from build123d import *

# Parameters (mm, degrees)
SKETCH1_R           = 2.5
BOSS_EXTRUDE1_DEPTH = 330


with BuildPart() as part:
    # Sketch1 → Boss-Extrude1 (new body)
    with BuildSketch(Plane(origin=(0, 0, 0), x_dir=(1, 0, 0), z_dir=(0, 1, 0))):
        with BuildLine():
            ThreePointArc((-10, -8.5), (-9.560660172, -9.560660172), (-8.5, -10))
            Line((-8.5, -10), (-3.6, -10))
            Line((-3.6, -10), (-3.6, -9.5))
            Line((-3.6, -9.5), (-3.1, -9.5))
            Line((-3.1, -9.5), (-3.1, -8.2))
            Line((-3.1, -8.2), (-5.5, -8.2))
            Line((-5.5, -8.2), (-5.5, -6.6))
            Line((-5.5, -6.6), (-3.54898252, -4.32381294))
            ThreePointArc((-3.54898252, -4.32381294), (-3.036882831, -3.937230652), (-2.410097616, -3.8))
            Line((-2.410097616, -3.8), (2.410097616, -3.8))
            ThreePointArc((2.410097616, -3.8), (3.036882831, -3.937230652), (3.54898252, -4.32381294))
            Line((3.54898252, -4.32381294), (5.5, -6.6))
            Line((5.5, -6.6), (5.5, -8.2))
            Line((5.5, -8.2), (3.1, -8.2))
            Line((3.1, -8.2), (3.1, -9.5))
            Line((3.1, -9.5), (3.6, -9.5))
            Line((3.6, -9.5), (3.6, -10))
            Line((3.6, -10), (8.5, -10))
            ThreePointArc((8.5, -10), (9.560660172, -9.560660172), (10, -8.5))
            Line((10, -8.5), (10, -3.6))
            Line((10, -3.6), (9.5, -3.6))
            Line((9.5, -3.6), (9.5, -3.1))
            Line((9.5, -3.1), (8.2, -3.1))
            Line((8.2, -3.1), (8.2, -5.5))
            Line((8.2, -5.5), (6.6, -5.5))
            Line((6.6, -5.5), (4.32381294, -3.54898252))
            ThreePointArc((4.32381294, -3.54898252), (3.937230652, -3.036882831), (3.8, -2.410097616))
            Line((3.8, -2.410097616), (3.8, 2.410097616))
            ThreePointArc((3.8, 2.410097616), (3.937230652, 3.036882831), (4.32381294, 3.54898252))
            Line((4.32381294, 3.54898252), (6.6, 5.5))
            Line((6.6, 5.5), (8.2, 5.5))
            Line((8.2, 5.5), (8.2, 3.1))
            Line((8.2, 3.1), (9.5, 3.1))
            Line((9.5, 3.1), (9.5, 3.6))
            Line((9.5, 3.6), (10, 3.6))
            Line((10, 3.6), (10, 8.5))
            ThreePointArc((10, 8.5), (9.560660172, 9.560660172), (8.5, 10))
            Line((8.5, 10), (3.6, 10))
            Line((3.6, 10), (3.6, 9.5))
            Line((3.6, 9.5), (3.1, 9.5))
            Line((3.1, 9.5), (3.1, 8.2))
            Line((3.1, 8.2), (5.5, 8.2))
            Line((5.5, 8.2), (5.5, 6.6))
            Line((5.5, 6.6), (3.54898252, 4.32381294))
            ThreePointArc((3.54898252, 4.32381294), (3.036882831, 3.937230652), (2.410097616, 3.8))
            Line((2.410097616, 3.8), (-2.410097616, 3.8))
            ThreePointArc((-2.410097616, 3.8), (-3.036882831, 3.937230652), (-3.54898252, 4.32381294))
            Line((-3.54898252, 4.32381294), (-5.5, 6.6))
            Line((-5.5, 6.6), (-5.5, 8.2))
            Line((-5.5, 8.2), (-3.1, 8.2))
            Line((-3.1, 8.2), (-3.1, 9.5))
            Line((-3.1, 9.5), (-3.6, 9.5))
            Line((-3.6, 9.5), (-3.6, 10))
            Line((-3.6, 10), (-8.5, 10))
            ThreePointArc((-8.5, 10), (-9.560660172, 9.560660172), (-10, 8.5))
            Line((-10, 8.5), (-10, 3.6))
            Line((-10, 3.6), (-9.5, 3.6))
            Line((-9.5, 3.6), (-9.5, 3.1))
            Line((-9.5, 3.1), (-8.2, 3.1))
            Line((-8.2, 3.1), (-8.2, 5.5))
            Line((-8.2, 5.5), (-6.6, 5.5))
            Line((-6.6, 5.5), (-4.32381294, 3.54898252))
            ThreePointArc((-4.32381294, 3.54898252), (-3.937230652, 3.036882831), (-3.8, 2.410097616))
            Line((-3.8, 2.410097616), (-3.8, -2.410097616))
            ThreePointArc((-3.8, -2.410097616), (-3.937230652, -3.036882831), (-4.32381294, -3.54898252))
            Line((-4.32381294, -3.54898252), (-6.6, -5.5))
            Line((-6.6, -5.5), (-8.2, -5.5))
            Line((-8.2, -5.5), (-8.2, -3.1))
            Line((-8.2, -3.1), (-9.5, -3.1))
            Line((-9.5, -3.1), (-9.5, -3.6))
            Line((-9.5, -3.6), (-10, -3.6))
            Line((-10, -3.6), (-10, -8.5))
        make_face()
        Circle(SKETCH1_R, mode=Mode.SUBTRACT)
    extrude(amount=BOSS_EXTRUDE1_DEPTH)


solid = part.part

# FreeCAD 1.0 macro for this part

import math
import FreeCAD as App
import Part
import Sketcher
Q = App.Units.Quantity

doc = App.newDocument("Part")
body = doc.addObject("PartDesign::Body", "Body")

sketch1 = body.newObject("Sketcher::SketchObject", "Sketch")
sketch1.AttachmentSupport = (doc.getObject("XZ_Plane"), [""])
sketch1.MapMode = "FlatFace"
sketch1.addGeometry(Part.ArcOfCircle(Part.Circle(App.Vector(-8.5, 8.5, 0), App.Vector(0, 0, 1), 1.5), math.radians(90), math.radians(180)), False)
sketch1.addGeometry(Part.LineSegment(App.Vector(-8.5, 10, 0), App.Vector(-3.6, 10, 0)), False)
sketch1.addGeometry(Part.LineSegment(App.Vector(-3.6, 10, 0), App.Vector(-3.6, 9.5, 0)), False)
sketch1.addGeometry(Part.LineSegment(App.Vector(-3.6, 9.5, 0), App.Vector(-3.1, 9.5, 0)), False)
sketch1.addGeometry(Part.LineSegment(App.Vector(-3.1, 9.5, 0), App.Vector(-3.1, 8.2, 0)), False)
sketch1.addGeometry(Part.LineSegment(App.Vector(-3.1, 8.2, 0), App.Vector(-5.5, 8.2, 0)), False)
sketch1.addGeometry(Part.LineSegment(App.Vector(-5.5, 8.2, 0), App.Vector(-5.5, 6.6, 0)), False)
sketch1.addGeometry(Part.LineSegment(App.Vector(-5.5, 6.6, 0), App.Vector(-3.5, 4.3, 0)), False)
sketch1.addGeometry(Part.ArcOfCircle(Part.Circle(App.Vector(-2.4, 5.3, 0), App.Vector(0, 0, 1), 1.5), math.radians(-139), math.radians(-90)), False)
sketch1.addGeometry(Part.LineSegment(App.Vector(-2.4, 3.8, 0), App.Vector(2.4, 3.8, 0)), False)
sketch1.addGeometry(Part.ArcOfCircle(Part.Circle(App.Vector(2.4, 5.3, 0), App.Vector(0, 0, 1), 1.5), math.radians(-90), math.radians(-41)), False)
sketch1.addGeometry(Part.LineSegment(App.Vector(3.5, 4.3, 0), App.Vector(5.5, 6.6, 0)), False)
sketch1.addGeometry(Part.LineSegment(App.Vector(5.5, 6.6, 0), App.Vector(5.5, 8.2, 0)), False)
sketch1.addGeometry(Part.LineSegment(App.Vector(5.5, 8.2, 0), App.Vector(3.1, 8.2, 0)), False)
sketch1.addGeometry(Part.LineSegment(App.Vector(3.1, 8.2, 0), App.Vector(3.1, 9.5, 0)), False)
sketch1.addGeometry(Part.LineSegment(App.Vector(3.1, 9.5, 0), App.Vector(3.6, 9.5, 0)), False)
sketch1.addGeometry(Part.LineSegment(App.Vector(3.6, 9.5, 0), App.Vector(3.6, 10, 0)), False)
sketch1.addGeometry(Part.LineSegment(App.Vector(3.6, 10, 0), App.Vector(8.5, 10, 0)), False)
sketch1.addGeometry(Part.ArcOfCircle(Part.Circle(App.Vector(8.5, 8.5, 0), App.Vector(0, 0, 1), 1.5), math.radians(0), math.radians(90)), False)
sketch1.addGeometry(Part.LineSegment(App.Vector(10, 8.5, 0), App.Vector(10, 3.6, 0)), False)
sketch1.addGeometry(Part.LineSegment(App.Vector(10, 3.6, 0), App.Vector(9.5, 3.6, 0)), False)
sketch1.addGeometry(Part.LineSegment(App.Vector(9.5, 3.6, 0), App.Vector(9.5, 3.1, 0)), False)
sketch1.addGeometry(Part.LineSegment(App.Vector(9.5, 3.1, 0), App.Vector(8.2, 3.1, 0)), False)
sketch1.addGeometry(Part.LineSegment(App.Vector(8.2, 3.1, 0), App.Vector(8.2, 5.5, 0)), False)
sketch1.addGeometry(Part.LineSegment(App.Vector(8.2, 5.5, 0), App.Vector(6.6, 5.5, 0)), False)
sketch1.addGeometry(Part.LineSegment(App.Vector(6.6, 5.5, 0), App.Vector(4.3, 3.5, 0)), False)
sketch1.addGeometry(Part.ArcOfCircle(Part.Circle(App.Vector(5.3, 2.4, 0), App.Vector(0, 0, 1), 1.5), math.radians(131), math.radians(180)), False)
sketch1.addGeometry(Part.LineSegment(App.Vector(3.8, 2.4, 0), App.Vector(3.8, -2.4, 0)), False)
sketch1.addGeometry(Part.ArcOfCircle(Part.Circle(App.Vector(5.3, -2.4, 0), App.Vector(0, 0, 1), 1.5), math.radians(180), math.radians(229)), False)
sketch1.addGeometry(Part.LineSegment(App.Vector(4.3, -3.5, 0), App.Vector(6.6, -5.5, 0)), False)
sketch1.addGeometry(Part.LineSegment(App.Vector(6.6, -5.5, 0), App.Vector(8.2, -5.5, 0)), False)
sketch1.addGeometry(Part.LineSegment(App.Vector(8.2, -5.5, 0), App.Vector(8.2, -3.1, 0)), False)
sketch1.addGeometry(Part.LineSegment(App.Vector(8.2, -3.1, 0), App.Vector(9.5, -3.1, 0)), False)
sketch1.addGeometry(Part.LineSegment(App.Vector(9.5, -3.1, 0), App.Vector(9.5, -3.6, 0)), False)
sketch1.addGeometry(Part.LineSegment(App.Vector(9.5, -3.6, 0), App.Vector(10, -3.6, 0)), False)
sketch1.addGeometry(Part.LineSegment(App.Vector(10, -3.6, 0), App.Vector(10, -8.5, 0)), False)
sketch1.addGeometry(Part.ArcOfCircle(Part.Circle(App.Vector(8.5, -8.5, 0), App.Vector(0, 0, 1), 1.5), math.radians(-90), math.radians(0)), False)
sketch1.addGeometry(Part.LineSegment(App.Vector(8.5, -10, 0), App.Vector(3.6, -10, 0)), False)
sketch1.addGeometry(Part.LineSegment(App.Vector(3.6, -10, 0), App.Vector(3.6, -9.5, 0)), False)
sketch1.addGeometry(Part.LineSegment(App.Vector(3.6, -9.5, 0), App.Vector(3.1, -9.5, 0)), False)
sketch1.addGeometry(Part.LineSegment(App.Vector(3.1, -9.5, 0), App.Vector(3.1, -8.2, 0)), False)
sketch1.addGeometry(Part.LineSegment(App.Vector(3.1, -8.2, 0), App.Vector(5.5, -8.2, 0)), False)
sketch1.addGeometry(Part.LineSegment(App.Vector(5.5, -8.2, 0), App.Vector(5.5, -6.6, 0)), False)
sketch1.addGeometry(Part.LineSegment(App.Vector(5.5, -6.6, 0), App.Vector(3.5, -4.3, 0)), False)
sketch1.addGeometry(Part.ArcOfCircle(Part.Circle(App.Vector(2.4, -5.3, 0), App.Vector(0, 0, 1), 1.5), math.radians(41), math.radians(90)), False)
sketch1.addGeometry(Part.LineSegment(App.Vector(2.4, -3.8, 0), App.Vector(-2.4, -3.8, 0)), False)
sketch1.addGeometry(Part.ArcOfCircle(Part.Circle(App.Vector(-2.4, -5.3, 0), App.Vector(0, 0, 1), 1.5), math.radians(90), math.radians(139)), False)
sketch1.addGeometry(Part.LineSegment(App.Vector(-3.5, -4.3, 0), App.Vector(-5.5, -6.6, 0)), False)
sketch1.addGeometry(Part.LineSegment(App.Vector(-5.5, -6.6, 0), App.Vector(-5.5, -8.2, 0)), False)
sketch1.addGeometry(Part.LineSegment(App.Vector(-5.5, -8.2, 0), App.Vector(-3.1, -8.2, 0)), False)
sketch1.addGeometry(Part.LineSegment(App.Vector(-3.1, -8.2, 0), App.Vector(-3.1, -9.5, 0)), False)
sketch1.addGeometry(Part.LineSegment(App.Vector(-3.1, -9.5, 0), App.Vector(-3.6, -9.5, 0)), False)
sketch1.addGeometry(Part.LineSegment(App.Vector(-3.6, -9.5, 0), App.Vector(-3.6, -10, 0)), False)
sketch1.addGeometry(Part.LineSegment(App.Vector(-3.6, -10, 0), App.Vector(-8.5, -10, 0)), False)
sketch1.addGeometry(Part.ArcOfCircle(Part.Circle(App.Vector(-8.5, -8.5, 0), App.Vector(0, 0, 1), 1.5), math.radians(180), math.radians(270)), False)
sketch1.addGeometry(Part.LineSegment(App.Vector(-10, -8.5, 0), App.Vector(-10, -3.6, 0)), False)
sketch1.addGeometry(Part.LineSegment(App.Vector(-10, -3.6, 0), App.Vector(-9.5, -3.6, 0)), False)
sketch1.addGeometry(Part.LineSegment(App.Vector(-9.5, -3.6, 0), App.Vector(-9.5, -3.1, 0)), False)
sketch1.addGeometry(Part.LineSegment(App.Vector(-9.5, -3.1, 0), App.Vector(-8.2, -3.1, 0)), False)
sketch1.addGeometry(Part.LineSegment(App.Vector(-8.2, -3.1, 0), App.Vector(-8.2, -5.5, 0)), False)
sketch1.addGeometry(Part.LineSegment(App.Vector(-8.2, -5.5, 0), App.Vector(-6.6, -5.5, 0)), False)
sketch1.addGeometry(Part.LineSegment(App.Vector(-6.6, -5.5, 0), App.Vector(-4.3, -3.5, 0)), False)
sketch1.addGeometry(Part.ArcOfCircle(Part.Circle(App.Vector(-5.3, -2.4, 0), App.Vector(0, 0, 1), 1.5), math.radians(-49), math.radians(0)), False)
sketch1.addGeometry(Part.LineSegment(App.Vector(-3.8, -2.4, 0), App.Vector(-3.8, 2.4, 0)), False)
sketch1.addGeometry(Part.ArcOfCircle(Part.Circle(App.Vector(-5.3, 2.4, 0), App.Vector(0, 0, 1), 1.5), math.radians(0), math.radians(49)), False)
sketch1.addGeometry(Part.LineSegment(App.Vector(-4.3, 3.5, 0), App.Vector(-6.6, 5.5, 0)), False)
sketch1.addGeometry(Part.LineSegment(App.Vector(-6.6, 5.5, 0), App.Vector(-8.2, 5.5, 0)), False)
sketch1.addGeometry(Part.LineSegment(App.Vector(-8.2, 5.5, 0), App.Vector(-8.2, 3.1, 0)), False)
sketch1.addGeometry(Part.LineSegment(App.Vector(-8.2, 3.1, 0), App.Vector(-9.5, 3.1, 0)), False)
sketch1.addGeometry(Part.LineSegment(App.Vector(-9.5, 3.1, 0), App.Vector(-9.5, 3.6, 0)), False)
sketch1.addGeometry(Part.LineSegment(App.Vector(-9.5, 3.6, 0), App.Vector(-10, 3.6, 0)), False)
sketch1.addGeometry(Part.LineSegment(App.Vector(-10, 3.6, 0), App.Vector(-10, 8.5, 0)), False)
sketch1.addGeometry(Part.Circle(App.Vector(0, 0, 0), App.Vector(0, 0, 1), 2.5), False)
sketch1.addConstraint(Sketcher.Constraint("Tangent", 0, 1, 1, 1))
sketch1.addConstraint(Sketcher.Constraint("Coincident", 1, 2, 2, 1))
sketch1.addConstraint(Sketcher.Constraint("Coincident", 2, 2, 3, 1))
sketch1.addConstraint(Sketcher.Constraint("Coincident", 3, 2, 4, 1))
sketch1.addConstraint(Sketcher.Constraint("Coincident", 4, 2, 5, 1))
sketch1.addConstraint(Sketcher.Constraint("Coincident", 5, 2, 6, 1))
sketch1.addConstraint(Sketcher.Constraint("Coincident", 6, 2, 7, 1))
sketch1.addConstraint(Sketcher.Constraint("Tangent", 7, 2, 8, 1))
sketch1.addConstraint(Sketcher.Constraint("Tangent", 8, 2, 9, 1))
sketch1.addConstraint(Sketcher.Constraint("Tangent", 9, 2, 10, 1))
sketch1.addConstraint(Sketcher.Constraint("Tangent", 10, 2, 11, 1))
sketch1.addConstraint(Sketcher.Constraint("Coincident", 11, 2, 12, 1))
sketch1.addConstraint(Sketcher.Constraint("Coincident", 12, 2, 13, 1))
sketch1.addConstraint(Sketcher.Constraint("Coincident", 13, 2, 14, 1))
sketch1.addConstraint(Sketcher.Constraint("Coincident", 14, 2, 15, 1))
sketch1.addConstraint(Sketcher.Constraint("Coincident", 15, 2, 16, 1))
sketch1.addConstraint(Sketcher.Constraint("Coincident", 16, 2, 17, 1))
sketch1.addConstraint(Sketcher.Constraint("Tangent", 17, 2, 18, 2))
sketch1.addConstraint(Sketcher.Constraint("Tangent", 18, 1, 19, 1))
sketch1.addConstraint(Sketcher.Constraint("Coincident", 19, 2, 20, 1))
sketch1.addConstraint(Sketcher.Constraint("Coincident", 20, 2, 21, 1))
sketch1.addConstraint(Sketcher.Constraint("Coincident", 21, 2, 22, 1))
sketch1.addConstraint(Sketcher.Constraint("Coincident", 22, 2, 23, 1))
sketch1.addConstraint(Sketcher.Constraint("Coincident", 23, 2, 24, 1))
sketch1.addConstraint(Sketcher.Constraint("Coincident", 24, 2, 25, 1))
sketch1.addConstraint(Sketcher.Constraint("Tangent", 25, 2, 26, 1))
sketch1.addConstraint(Sketcher.Constraint("Tangent", 26, 2, 27, 1))
sketch1.addConstraint(Sketcher.Constraint("Tangent", 27, 2, 28, 1))
sketch1.addConstraint(Sketcher.Constraint("Tangent", 28, 2, 29, 1))
sketch1.addConstraint(Sketcher.Constraint("Coincident", 29, 2, 30, 1))
sketch1.addConstraint(Sketcher.Constraint("Coincident", 30, 2, 31, 1))
sketch1.addConstraint(Sketcher.Constraint("Coincident", 31, 2, 32, 1))
sketch1.addConstraint(Sketcher.Constraint("Coincident", 32, 2, 33, 1))
sketch1.addConstraint(Sketcher.Constraint("Coincident", 33, 2, 34, 1))
sketch1.addConstraint(Sketcher.Constraint("Coincident", 34, 2, 35, 1))
sketch1.addConstraint(Sketcher.Constraint("Tangent", 35, 2, 36, 2))
sketch1.addConstraint(Sketcher.Constraint("Tangent", 36, 1, 37, 1))
sketch1.addConstraint(Sketcher.Constraint("Coincident", 37, 2, 38, 1))
sketch1.addConstraint(Sketcher.Constraint("Coincident", 38, 2, 39, 1))
sketch1.addConstraint(Sketcher.Constraint("Coincident", 39, 2, 40, 1))
sketch1.addConstraint(Sketcher.Constraint("Coincident", 40, 2, 41, 1))
sketch1.addConstraint(Sketcher.Constraint("Coincident", 41, 2, 42, 1))
sketch1.addConstraint(Sketcher.Constraint("Coincident", 42, 2, 43, 1))
sketch1.addConstraint(Sketcher.Constraint("Tangent", 43, 2, 44, 1))
sketch1.addConstraint(Sketcher.Constraint("Tangent", 44, 2, 45, 1))
sketch1.addConstraint(Sketcher.Constraint("Tangent", 45, 2, 46, 1))
sketch1.addConstraint(Sketcher.Constraint("Tangent", 46, 2, 47, 1))
sketch1.addConstraint(Sketcher.Constraint("Coincident", 47, 2, 48, 1))
sketch1.addConstraint(Sketcher.Constraint("Coincident", 48, 2, 49, 1))
sketch1.addConstraint(Sketcher.Constraint("Coincident", 49, 2, 50, 1))
sketch1.addConstraint(Sketcher.Constraint("Coincident", 50, 2, 51, 1))
sketch1.addConstraint(Sketcher.Constraint("Coincident", 51, 2, 52, 1))
sketch1.addConstraint(Sketcher.Constraint("Coincident", 52, 2, 53, 1))
sketch1.addConstraint(Sketcher.Constraint("Tangent", 53, 2, 54, 2))
sketch1.addConstraint(Sketcher.Constraint("Tangent", 54, 1, 55, 1))
sketch1.addConstraint(Sketcher.Constraint("Coincident", 55, 2, 56, 1))
sketch1.addConstraint(Sketcher.Constraint("Coincident", 56, 2, 57, 1))
sketch1.addConstraint(Sketcher.Constraint("Coincident", 57, 2, 58, 1))
sketch1.addConstraint(Sketcher.Constraint("Coincident", 58, 2, 59, 1))
sketch1.addConstraint(Sketcher.Constraint("Coincident", 59, 2, 60, 1))
sketch1.addConstraint(Sketcher.Constraint("Coincident", 60, 2, 61, 1))
sketch1.addConstraint(Sketcher.Constraint("Tangent", 61, 2, 62, 1))
sketch1.addConstraint(Sketcher.Constraint("Tangent", 62, 2, 63, 1))
sketch1.addConstraint(Sketcher.Constraint("Tangent", 63, 2, 64, 1))
sketch1.addConstraint(Sketcher.Constraint("Tangent", 64, 2, 65, 1))
sketch1.addConstraint(Sketcher.Constraint("Coincident", 65, 2, 66, 1))
sketch1.addConstraint(Sketcher.Constraint("Coincident", 66, 2, 67, 1))
sketch1.addConstraint(Sketcher.Constraint("Coincident", 67, 2, 68, 1))
sketch1.addConstraint(Sketcher.Constraint("Coincident", 68, 2, 69, 1))
sketch1.addConstraint(Sketcher.Constraint("Coincident", 69, 2, 70, 1))
sketch1.addConstraint(Sketcher.Constraint("Coincident", 70, 2, 71, 1))
sketch1.addConstraint(Sketcher.Constraint("Tangent", 71, 2, 0, 2))
sketch1.addConstraint(Sketcher.Constraint("Horizontal", 1))
sketch1.addConstraint(Sketcher.Constraint("Vertical", 2))
sketch1.addConstraint(Sketcher.Constraint("Horizontal", 3))
sketch1.addConstraint(Sketcher.Constraint("Vertical", 4))
sketch1.addConstraint(Sketcher.Constraint("Horizontal", 5))
sketch1.addConstraint(Sketcher.Constraint("Vertical", 6))
sketch1.addConstraint(Sketcher.Constraint("Horizontal", 9))
sketch1.addConstraint(Sketcher.Constraint("Vertical", 12))
sketch1.addConstraint(Sketcher.Constraint("Horizontal", 13))
sketch1.addConstraint(Sketcher.Constraint("Vertical", 14))
sketch1.addConstraint(Sketcher.Constraint("Horizontal", 15))
sketch1.addConstraint(Sketcher.Constraint("Vertical", 16))
sketch1.addConstraint(Sketcher.Constraint("Horizontal", 17))
sketch1.addConstraint(Sketcher.Constraint("Vertical", 19))
sketch1.addConstraint(Sketcher.Constraint("Horizontal", 20))
sketch1.addConstraint(Sketcher.Constraint("Vertical", 21))
sketch1.addConstraint(Sketcher.Constraint("Horizontal", 22))
sketch1.addConstraint(Sketcher.Constraint("Vertical", 23))
sketch1.addConstraint(Sketcher.Constraint("Horizontal", 24))
sketch1.addConstraint(Sketcher.Constraint("Vertical", 27))
sketch1.addConstraint(Sketcher.Constraint("Horizontal", 30))
sketch1.addConstraint(Sketcher.Constraint("Vertical", 31))
sketch1.addConstraint(Sketcher.Constraint("Horizontal", 32))
sketch1.addConstraint(Sketcher.Constraint("Vertical", 33))
sketch1.addConstraint(Sketcher.Constraint("Horizontal", 34))
sketch1.addConstraint(Sketcher.Constraint("Vertical", 35))
sketch1.addConstraint(Sketcher.Constraint("Horizontal", 37))
sketch1.addConstraint(Sketcher.Constraint("Vertical", 38))
sketch1.addConstraint(Sketcher.Constraint("Horizontal", 39))
sketch1.addConstraint(Sketcher.Constraint("Vertical", 40))
sketch1.addConstraint(Sketcher.Constraint("Horizontal", 41))
sketch1.addConstraint(Sketcher.Constraint("Vertical", 42))
sketch1.addConstraint(Sketcher.Constraint("Horizontal", 45))
sketch1.addConstraint(Sketcher.Constraint("Vertical", 48))
sketch1.addConstraint(Sketcher.Constraint("Horizontal", 49))
sketch1.addConstraint(Sketcher.Constraint("Vertical", 50))
sketch1.addConstraint(Sketcher.Constraint("Horizontal", 51))
sketch1.addConstraint(Sketcher.Constraint("Vertical", 52))
sketch1.addConstraint(Sketcher.Constraint("Horizontal", 53))
sketch1.addConstraint(Sketcher.Constraint("Vertical", 55))
sketch1.addConstraint(Sketcher.Constraint("Horizontal", 56))
sketch1.addConstraint(Sketcher.Constraint("Vertical", 57))
sketch1.addConstraint(Sketcher.Constraint("Horizontal", 58))
sketch1.addConstraint(Sketcher.Constraint("Vertical", 59))
sketch1.addConstraint(Sketcher.Constraint("Horizontal", 60))
sketch1.addConstraint(Sketcher.Constraint("Vertical", 63))
sketch1.addConstraint(Sketcher.Constraint("Horizontal", 66))
sketch1.addConstraint(Sketcher.Constraint("Vertical", 67))
sketch1.addConstraint(Sketcher.Constraint("Horizontal", 68))
sketch1.addConstraint(Sketcher.Constraint("Vertical", 69))
sketch1.addConstraint(Sketcher.Constraint("Horizontal", 70))
sketch1.addConstraint(Sketcher.Constraint("Vertical", 71))
sketch1.addConstraint(Sketcher.Constraint("Coincident", 72, 3, -1, 1))
sketch1.addConstraint(Sketcher.Constraint("Equal", 0, 8))
sketch1.addConstraint(Sketcher.Constraint("Equal", 8, 10))
sketch1.addConstraint(Sketcher.Constraint("Equal", 10, 18))
sketch1.addConstraint(Sketcher.Constraint("Equal", 18, 26))
sketch1.addConstraint(Sketcher.Constraint("Equal", 26, 28))
sketch1.addConstraint(Sketcher.Constraint("Equal", 28, 36))
sketch1.addConstraint(Sketcher.Constraint("Equal", 36, 44))
sketch1.addConstraint(Sketcher.Constraint("Equal", 44, 46))
sketch1.addConstraint(Sketcher.Constraint("Equal", 46, 54))
sketch1.addConstraint(Sketcher.Constraint("Equal", 54, 62))
sketch1.addConstraint(Sketcher.Constraint("Equal", 62, 64))
sketch1.addConstraint(Sketcher.Constraint("Symmetric", 0, 3, 36, 3, -1, 1))
sketch1.addConstraint(Sketcher.Constraint("Symmetric", 8, 3, 44, 3, -1, 1))
sketch1.addConstraint(Sketcher.Constraint("Symmetric", 18, 3, 54, 3, -1, 1))
sketch1.addConstraint(Sketcher.Constraint("Symmetric", 26, 3, 62, 3, -1, 1))
sketch1.addConstraint(Sketcher.Constraint("Symmetric", 2, 2, 38, 2, -1, 1))
sketch1.addConstraint(Sketcher.Constraint("Symmetric", 4, 2, 40, 2, -1, 1))
sketch1.addConstraint(Sketcher.Constraint("Symmetric", 6, 2, 42, 2, -1, 1))
sketch1.addConstraint(Sketcher.Constraint("Symmetric", 10, 2, 46, 2, -1, 1))
sketch1.addConstraint(Sketcher.Constraint("Symmetric", 12, 2, 48, 2, -1, 1))
sketch1.addConstraint(Sketcher.Constraint("Symmetric", 14, 2, 50, 2, -1, 1))
sketch1.addConstraint(Sketcher.Constraint("Symmetric", 20, 2, 56, 2, -1, 1))
sketch1.addConstraint(Sketcher.Constraint("Symmetric", 22, 2, 58, 2, -1, 1))
sketch1.addConstraint(Sketcher.Constraint("Symmetric", 24, 2, 60, 2, -1, 1))
sketch1.addConstraint(Sketcher.Constraint("Symmetric", 28, 2, 64, 2, -1, 1))
sketch1.addConstraint(Sketcher.Constraint("Symmetric", 30, 2, 66, 2, -1, 1))
sketch1.addConstraint(Sketcher.Constraint("Symmetric", 32, 2, 68, 2, -1, 1))
sketch1.addConstraint(Sketcher.Constraint("Symmetric", 0, 3, 18, 3, -2))
sketch1.addConstraint(Sketcher.Constraint("Symmetric", 7, 2, 10, 2, -2))
sketch1.addConstraint(Sketcher.Constraint("Symmetric", 5, 2, 12, 2, -2))
sketch1.addConstraint(Sketcher.Constraint("Symmetric", 3, 2, 14, 2, -2))
sketch1.addConstraint(Sketcher.Constraint("Symmetric", 33, 2, 56, 2, -2))
sketch1.addConstraint(Sketcher.Constraint("Symmetric", 31, 2, 58, 2, -2))
sketch1.addConstraint(Sketcher.Constraint("Symmetric", 29, 2, 60, 2, -2))
sketch1.addConstraint(Sketcher.Constraint("Perpendicular", 7, 25))
sketch1.addConstraint(Sketcher.Constraint("Perpendicular", 11, 29))
sketch1.addConstraint(Sketcher.Constraint("Horizontal", 20, 2, 69, 2))
sketch1.addConstraint(Sketcher.Constraint("Vertical", 16, 2, 37, 2))
sketch1.addConstraint(Sketcher.Constraint("Vertical", 2, 2, 51, 2))
sketch1.addConstraint(Sketcher.Constraint("Equal", 15, 20))
sketch1.addConstraint(Sketcher.Constraint("Equal", 70, 2))
sketch1.addConstraint(Sketcher.Constraint("Equal", 68, 4))
sketch1.addConstraint(Sketcher.Constraint("Equal", 66, 6))
sketch1.addConstraint(Sketcher.Constraint("Equal", 53, 19))
sketch1.addConstraint(Sketcher.Constraint("Equal", 16, 21))
sketch1.addConstraint(Sketcher.Constraint("Equal", 49, 23))
sketch1.addConstraint(Sketcher.Constraint("Equal", 45, 27))
sketch1.addConstraint(Sketcher.Constraint("Equal", 11, 25))
sketch1.addConstraint(Sketcher.Constraint("Diameter", 72, Q("5 mm")))
sketch1.addConstraint(Sketcher.Constraint("Radius", 0, Q("1.5 mm")))
sketch1.addConstraint(Sketcher.Constraint("DistanceX", 1, 1, 1, 2, Q("4.9 mm")))
sketch1.addConstraint(Sketcher.Constraint("DistanceX", 3, 1, 3, 2, Q("0.5 mm")))
sketch1.addConstraint(Sketcher.Constraint("DistanceX", 5, 2, 5, 1, Q("2.4 mm")))
sketch1.addConstraint(Sketcher.Constraint("DistanceX", 22, 2, 22, 1, Q("1.3 mm")))
sketch1.addConstraint(Sketcher.Constraint("DistanceX", 24, 2, 24, 1, Q("1.6 mm")))
sketch1.addConstraint(Sketcher.Constraint("DistanceY", -1, 1, 0, 1, Q("10 mm")))
sketch1.addConstraint(Sketcher.Constraint("DistanceY", -1, 1, 8, 3, Q("5.3 mm")))
sketch1.addConstraint(Sketcher.Constraint("DistanceX", 9, 1, 9, 2, Q("4.820195 mm")))
pad1 = body.newObject("PartDesign::Pad", "Pad")
pad1.Profile = sketch1
pad1.Length = 330
pad1.Reversed = True

doc.recompute()
